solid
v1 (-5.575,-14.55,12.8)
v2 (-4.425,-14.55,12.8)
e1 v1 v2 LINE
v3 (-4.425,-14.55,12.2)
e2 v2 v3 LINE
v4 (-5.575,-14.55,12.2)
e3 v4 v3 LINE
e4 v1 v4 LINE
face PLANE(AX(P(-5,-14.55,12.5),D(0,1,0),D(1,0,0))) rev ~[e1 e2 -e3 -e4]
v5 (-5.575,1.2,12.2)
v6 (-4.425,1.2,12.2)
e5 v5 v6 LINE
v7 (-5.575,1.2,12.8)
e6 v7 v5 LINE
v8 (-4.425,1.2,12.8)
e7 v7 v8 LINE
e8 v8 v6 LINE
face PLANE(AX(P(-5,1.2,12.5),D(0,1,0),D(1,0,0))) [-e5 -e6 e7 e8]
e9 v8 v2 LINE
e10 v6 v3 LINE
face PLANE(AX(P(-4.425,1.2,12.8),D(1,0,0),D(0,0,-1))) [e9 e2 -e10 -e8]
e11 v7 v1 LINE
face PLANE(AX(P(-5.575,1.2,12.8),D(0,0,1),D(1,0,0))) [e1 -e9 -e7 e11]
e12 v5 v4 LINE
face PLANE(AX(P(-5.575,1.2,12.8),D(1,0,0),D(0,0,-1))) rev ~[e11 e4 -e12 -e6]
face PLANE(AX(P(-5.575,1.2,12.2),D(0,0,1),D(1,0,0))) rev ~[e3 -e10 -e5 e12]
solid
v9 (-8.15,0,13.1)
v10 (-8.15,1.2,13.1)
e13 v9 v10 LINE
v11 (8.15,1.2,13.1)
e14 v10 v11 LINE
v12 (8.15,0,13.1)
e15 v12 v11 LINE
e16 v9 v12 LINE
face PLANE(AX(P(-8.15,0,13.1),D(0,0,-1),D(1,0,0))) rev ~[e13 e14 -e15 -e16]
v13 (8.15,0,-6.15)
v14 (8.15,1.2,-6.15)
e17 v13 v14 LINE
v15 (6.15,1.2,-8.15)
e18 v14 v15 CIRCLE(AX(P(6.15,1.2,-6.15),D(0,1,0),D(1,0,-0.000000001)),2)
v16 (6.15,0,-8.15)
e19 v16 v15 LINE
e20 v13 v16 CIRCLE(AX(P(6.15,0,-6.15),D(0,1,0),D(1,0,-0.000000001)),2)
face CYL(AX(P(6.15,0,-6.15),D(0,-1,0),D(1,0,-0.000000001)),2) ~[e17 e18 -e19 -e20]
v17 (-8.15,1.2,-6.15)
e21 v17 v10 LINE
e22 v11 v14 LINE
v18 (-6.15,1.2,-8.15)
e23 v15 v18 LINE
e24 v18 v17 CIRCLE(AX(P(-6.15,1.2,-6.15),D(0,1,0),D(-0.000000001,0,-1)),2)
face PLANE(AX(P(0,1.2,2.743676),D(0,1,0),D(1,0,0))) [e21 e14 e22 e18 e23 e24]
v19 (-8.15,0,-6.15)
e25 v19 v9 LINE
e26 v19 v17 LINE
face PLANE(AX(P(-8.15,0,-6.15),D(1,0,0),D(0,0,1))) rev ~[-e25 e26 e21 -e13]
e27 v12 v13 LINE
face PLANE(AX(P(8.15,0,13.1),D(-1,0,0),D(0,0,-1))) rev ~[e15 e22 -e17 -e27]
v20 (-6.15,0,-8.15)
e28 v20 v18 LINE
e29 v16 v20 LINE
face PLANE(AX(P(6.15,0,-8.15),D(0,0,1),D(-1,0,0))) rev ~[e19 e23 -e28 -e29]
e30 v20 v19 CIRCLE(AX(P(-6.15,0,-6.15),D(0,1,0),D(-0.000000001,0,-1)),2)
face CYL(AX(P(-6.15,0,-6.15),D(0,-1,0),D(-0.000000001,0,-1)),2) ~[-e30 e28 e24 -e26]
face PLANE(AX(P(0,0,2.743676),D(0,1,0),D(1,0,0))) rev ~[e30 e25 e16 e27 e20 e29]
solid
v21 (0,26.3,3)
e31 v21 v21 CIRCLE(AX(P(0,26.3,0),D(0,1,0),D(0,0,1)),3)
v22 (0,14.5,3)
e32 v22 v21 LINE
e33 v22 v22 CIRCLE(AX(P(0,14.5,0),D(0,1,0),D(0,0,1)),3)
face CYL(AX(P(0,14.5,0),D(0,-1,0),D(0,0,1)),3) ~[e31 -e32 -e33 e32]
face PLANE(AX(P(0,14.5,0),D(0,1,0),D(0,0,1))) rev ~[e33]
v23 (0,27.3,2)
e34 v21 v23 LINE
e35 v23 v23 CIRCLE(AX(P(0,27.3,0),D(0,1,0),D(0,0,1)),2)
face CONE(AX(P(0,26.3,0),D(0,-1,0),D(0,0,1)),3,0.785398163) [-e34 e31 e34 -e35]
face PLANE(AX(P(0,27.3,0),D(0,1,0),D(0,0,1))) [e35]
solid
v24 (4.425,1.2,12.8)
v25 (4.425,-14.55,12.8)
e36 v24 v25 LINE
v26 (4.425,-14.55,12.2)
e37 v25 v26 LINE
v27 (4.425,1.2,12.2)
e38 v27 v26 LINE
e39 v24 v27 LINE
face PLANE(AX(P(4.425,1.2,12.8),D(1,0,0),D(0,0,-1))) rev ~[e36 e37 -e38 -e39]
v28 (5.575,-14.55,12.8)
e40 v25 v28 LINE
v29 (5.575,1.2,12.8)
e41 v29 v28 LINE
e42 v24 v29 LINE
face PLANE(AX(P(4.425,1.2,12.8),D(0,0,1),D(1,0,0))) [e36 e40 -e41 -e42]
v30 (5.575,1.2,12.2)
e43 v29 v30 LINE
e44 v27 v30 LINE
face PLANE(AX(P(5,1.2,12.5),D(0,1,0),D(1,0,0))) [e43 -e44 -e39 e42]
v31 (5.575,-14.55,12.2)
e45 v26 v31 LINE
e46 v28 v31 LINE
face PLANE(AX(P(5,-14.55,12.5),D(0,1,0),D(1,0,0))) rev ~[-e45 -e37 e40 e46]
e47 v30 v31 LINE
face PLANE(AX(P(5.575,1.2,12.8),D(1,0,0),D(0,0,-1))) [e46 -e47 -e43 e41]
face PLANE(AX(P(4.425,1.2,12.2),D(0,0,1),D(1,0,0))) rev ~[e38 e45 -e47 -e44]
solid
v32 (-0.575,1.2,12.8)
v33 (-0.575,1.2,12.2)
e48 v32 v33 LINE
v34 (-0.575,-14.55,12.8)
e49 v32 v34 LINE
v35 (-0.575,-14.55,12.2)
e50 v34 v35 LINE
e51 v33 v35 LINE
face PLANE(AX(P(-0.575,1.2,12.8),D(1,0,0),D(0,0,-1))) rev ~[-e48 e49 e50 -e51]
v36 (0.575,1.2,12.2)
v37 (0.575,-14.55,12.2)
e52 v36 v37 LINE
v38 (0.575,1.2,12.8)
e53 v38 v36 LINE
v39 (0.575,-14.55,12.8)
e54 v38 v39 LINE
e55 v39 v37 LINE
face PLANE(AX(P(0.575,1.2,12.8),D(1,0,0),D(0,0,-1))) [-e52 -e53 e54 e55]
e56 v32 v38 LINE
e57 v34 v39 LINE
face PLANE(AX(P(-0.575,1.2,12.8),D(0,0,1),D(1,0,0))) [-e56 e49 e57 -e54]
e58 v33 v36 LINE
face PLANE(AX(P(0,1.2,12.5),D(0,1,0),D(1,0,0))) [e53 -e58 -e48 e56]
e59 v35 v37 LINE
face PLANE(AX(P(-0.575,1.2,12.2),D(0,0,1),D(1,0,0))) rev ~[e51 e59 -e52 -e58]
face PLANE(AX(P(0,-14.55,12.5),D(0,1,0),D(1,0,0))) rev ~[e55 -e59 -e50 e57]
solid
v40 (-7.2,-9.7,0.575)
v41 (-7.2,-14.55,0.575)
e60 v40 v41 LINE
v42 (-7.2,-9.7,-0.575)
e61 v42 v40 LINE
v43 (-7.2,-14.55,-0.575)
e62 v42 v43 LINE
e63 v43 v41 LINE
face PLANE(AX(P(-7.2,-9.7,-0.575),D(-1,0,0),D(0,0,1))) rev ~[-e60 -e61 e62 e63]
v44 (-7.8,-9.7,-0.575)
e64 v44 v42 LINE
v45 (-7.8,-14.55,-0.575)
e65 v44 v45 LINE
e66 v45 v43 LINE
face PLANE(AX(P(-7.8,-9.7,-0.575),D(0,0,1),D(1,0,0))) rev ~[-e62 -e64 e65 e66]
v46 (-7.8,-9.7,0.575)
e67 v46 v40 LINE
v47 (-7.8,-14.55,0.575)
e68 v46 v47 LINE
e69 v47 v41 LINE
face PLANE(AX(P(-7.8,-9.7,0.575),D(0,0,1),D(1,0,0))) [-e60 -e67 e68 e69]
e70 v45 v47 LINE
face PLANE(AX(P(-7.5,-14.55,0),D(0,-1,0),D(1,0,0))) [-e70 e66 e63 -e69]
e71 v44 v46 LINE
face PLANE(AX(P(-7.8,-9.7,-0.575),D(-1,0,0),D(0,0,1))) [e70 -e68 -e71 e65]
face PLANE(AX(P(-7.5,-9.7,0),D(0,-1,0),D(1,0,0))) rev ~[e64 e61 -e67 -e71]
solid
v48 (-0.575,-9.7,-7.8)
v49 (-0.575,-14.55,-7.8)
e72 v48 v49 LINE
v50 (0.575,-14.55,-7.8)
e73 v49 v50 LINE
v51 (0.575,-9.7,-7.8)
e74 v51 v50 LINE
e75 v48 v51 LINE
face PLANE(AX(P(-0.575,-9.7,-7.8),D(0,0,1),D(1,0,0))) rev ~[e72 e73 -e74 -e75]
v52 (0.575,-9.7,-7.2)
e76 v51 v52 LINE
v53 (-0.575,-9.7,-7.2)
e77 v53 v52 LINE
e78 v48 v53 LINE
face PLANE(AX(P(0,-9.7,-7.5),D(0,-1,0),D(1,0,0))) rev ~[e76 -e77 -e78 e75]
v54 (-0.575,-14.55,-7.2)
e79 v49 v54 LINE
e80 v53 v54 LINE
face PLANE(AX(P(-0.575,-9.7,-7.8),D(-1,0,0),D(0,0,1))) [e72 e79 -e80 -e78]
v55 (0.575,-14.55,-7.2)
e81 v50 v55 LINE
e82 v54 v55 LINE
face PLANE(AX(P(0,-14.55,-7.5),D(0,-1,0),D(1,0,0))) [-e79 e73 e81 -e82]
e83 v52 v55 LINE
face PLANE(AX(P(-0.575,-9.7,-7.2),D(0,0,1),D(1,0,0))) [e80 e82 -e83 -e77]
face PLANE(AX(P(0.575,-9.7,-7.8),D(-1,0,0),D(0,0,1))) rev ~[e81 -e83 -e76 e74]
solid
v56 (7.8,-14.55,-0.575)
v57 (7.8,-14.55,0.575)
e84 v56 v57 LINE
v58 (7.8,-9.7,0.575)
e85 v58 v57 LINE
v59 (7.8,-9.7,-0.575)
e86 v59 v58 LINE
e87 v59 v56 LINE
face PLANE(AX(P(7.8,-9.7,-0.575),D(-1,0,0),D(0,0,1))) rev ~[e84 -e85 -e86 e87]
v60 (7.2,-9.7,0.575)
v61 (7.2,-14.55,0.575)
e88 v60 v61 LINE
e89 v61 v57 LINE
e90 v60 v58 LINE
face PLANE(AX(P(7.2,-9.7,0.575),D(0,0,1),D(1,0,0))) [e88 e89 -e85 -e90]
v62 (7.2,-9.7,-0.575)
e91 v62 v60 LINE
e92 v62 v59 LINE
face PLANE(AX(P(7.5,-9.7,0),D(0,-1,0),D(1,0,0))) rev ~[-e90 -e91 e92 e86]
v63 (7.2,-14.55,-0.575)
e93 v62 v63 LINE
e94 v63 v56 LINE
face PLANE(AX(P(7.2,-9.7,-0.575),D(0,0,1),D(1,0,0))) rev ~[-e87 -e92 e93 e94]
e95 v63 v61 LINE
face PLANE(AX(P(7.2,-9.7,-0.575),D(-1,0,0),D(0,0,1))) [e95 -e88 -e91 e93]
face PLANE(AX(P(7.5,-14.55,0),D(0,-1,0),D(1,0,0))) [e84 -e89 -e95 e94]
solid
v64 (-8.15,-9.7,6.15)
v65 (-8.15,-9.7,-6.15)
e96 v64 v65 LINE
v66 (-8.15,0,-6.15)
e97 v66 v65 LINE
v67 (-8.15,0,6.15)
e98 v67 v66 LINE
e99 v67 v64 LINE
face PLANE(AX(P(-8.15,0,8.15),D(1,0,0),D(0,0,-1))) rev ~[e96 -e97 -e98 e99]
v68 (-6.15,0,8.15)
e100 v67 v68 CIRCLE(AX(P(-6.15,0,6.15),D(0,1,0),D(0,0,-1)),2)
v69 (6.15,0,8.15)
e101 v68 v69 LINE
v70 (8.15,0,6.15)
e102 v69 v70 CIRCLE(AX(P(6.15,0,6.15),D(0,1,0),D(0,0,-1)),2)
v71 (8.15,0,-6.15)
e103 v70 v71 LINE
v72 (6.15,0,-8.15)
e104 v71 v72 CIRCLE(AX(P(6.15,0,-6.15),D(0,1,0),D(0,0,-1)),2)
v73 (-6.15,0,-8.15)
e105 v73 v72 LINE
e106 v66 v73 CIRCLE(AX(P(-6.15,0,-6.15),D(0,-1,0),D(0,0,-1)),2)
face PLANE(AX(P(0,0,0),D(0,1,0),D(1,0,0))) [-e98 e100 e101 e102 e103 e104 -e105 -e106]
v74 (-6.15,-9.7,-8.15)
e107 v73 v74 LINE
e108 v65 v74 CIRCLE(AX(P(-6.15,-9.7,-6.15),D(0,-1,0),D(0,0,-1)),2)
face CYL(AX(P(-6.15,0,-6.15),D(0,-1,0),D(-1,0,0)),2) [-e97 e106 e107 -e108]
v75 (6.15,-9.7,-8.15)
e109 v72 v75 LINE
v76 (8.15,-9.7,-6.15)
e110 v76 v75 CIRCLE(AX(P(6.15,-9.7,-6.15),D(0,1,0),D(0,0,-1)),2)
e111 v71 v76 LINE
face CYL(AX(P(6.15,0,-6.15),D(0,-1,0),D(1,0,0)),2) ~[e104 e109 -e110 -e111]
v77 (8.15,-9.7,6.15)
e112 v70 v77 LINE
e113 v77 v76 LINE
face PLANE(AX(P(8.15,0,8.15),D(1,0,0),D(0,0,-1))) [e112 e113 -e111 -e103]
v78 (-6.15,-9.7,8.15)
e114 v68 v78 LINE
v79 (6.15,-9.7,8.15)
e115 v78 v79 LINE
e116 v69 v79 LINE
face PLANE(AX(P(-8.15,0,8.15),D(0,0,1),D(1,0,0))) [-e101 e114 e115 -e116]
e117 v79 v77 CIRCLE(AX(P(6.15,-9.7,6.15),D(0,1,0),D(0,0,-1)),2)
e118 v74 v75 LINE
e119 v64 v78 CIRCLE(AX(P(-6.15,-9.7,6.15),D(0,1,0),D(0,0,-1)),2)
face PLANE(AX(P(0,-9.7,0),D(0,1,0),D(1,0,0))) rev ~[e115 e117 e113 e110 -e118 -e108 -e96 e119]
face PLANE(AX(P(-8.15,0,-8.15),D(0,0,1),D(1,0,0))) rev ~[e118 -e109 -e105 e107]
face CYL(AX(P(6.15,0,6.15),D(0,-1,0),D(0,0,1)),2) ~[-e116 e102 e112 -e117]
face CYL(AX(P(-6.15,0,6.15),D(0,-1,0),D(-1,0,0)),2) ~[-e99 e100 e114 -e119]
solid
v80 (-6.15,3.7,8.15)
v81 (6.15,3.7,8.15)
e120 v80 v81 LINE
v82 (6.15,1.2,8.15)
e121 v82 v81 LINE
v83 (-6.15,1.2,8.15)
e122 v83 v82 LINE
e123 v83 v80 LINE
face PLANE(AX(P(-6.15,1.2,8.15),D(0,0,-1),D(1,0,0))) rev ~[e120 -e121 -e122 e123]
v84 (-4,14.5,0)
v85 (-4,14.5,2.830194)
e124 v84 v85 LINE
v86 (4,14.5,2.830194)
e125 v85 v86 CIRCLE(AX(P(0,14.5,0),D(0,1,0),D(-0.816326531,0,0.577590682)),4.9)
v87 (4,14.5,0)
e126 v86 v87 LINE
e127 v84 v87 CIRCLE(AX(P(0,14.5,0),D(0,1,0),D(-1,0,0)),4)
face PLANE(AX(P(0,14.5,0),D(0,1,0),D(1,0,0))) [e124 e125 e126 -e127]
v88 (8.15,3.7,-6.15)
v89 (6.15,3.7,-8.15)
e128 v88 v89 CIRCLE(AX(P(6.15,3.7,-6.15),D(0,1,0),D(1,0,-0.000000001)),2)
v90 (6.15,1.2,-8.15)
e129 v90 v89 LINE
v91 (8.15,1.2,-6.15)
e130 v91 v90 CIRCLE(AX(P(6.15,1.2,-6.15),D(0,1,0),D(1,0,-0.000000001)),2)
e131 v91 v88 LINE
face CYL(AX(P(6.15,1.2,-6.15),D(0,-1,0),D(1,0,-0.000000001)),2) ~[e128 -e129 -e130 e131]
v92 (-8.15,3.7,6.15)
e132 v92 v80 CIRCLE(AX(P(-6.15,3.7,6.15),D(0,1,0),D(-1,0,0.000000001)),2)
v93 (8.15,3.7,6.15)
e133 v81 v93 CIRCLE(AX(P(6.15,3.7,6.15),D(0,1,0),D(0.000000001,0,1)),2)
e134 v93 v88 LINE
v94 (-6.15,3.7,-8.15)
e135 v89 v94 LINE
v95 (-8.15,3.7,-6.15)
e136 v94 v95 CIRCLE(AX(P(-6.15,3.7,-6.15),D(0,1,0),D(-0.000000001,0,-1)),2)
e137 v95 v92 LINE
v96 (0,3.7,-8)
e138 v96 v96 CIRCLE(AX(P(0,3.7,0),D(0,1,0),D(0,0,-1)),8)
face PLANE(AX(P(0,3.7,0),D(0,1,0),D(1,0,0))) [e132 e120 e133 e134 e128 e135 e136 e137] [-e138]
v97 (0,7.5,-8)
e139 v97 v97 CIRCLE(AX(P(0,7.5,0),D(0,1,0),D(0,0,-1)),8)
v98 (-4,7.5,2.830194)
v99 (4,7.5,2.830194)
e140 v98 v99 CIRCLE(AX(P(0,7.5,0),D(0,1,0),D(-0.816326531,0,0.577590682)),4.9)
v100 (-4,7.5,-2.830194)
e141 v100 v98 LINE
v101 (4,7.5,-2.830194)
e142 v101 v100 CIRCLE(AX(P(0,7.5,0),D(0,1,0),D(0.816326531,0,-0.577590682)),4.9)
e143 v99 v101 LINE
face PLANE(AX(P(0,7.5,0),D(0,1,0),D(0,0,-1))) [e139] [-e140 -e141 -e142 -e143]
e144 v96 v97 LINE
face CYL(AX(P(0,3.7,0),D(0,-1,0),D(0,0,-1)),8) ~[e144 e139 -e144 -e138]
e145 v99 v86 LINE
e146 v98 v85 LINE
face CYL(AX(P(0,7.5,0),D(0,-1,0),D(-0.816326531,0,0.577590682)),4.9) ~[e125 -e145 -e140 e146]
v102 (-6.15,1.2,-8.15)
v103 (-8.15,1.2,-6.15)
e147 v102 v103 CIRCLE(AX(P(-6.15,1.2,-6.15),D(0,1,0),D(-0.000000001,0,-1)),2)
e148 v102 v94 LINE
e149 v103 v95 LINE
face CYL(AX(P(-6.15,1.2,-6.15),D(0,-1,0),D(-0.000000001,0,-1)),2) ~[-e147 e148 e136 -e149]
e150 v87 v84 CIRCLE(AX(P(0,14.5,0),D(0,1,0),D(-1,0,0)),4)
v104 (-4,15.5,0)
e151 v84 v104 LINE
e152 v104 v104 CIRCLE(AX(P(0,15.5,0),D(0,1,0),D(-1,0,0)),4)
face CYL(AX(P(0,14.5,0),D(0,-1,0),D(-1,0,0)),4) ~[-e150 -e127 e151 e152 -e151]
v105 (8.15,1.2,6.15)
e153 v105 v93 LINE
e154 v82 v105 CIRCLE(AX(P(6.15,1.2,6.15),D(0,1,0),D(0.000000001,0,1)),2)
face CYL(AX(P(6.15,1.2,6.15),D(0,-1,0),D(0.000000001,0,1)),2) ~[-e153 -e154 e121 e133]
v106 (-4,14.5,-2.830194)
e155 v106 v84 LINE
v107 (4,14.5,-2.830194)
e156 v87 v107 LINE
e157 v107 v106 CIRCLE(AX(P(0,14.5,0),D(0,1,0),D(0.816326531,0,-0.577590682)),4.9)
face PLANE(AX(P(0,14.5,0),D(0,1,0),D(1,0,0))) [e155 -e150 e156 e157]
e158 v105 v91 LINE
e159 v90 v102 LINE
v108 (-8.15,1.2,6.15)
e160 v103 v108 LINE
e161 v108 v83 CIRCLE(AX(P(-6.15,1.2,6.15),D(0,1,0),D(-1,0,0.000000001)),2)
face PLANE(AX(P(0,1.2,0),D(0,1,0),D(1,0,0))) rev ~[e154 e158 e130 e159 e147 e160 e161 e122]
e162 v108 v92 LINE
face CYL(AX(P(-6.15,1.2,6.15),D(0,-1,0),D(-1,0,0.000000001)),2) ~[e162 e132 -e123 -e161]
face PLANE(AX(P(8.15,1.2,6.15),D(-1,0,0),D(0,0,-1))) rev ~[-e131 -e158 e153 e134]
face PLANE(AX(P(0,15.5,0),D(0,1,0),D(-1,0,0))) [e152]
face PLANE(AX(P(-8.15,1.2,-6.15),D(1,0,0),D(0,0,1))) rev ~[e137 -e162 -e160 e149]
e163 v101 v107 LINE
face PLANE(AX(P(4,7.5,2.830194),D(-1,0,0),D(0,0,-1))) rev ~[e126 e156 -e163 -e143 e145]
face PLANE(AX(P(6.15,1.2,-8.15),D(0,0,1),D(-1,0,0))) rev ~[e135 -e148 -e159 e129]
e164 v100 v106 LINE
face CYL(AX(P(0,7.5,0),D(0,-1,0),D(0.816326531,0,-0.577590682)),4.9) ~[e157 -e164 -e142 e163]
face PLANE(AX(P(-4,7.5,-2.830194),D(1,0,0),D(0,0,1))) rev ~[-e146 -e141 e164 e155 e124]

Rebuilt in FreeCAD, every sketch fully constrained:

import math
import FreeCAD as App
import Part
import Sketcher
from FreeCAD import Vector
Q = App.Units.Quantity


def edges_at(feature, points):
    """Names of the edges that pass closest to the given points."""
    edges = feature.Shape.Edges
    near = lambda p: min(range(len(edges)), key=lambda i: edges[i].distToShape(Part.Vertex(*p))[0])
    return sorted({f"Edge{near(p) + 1}" for p in points})

doc = App.newDocument("Part")
params = doc.addObject("Spreadsheet::Sheet", "Params")
for row, (alias, value) in enumerate([
    ("sketch1_width", "16.3 mm"),
    ("pad1_length", "9.7 mm"),
    ("fillet_radius", "2 mm"),
    ("sketch2_radius", "2 mm"),
    ("sketch2_width", "16.3 mm"),
    ("sketch2_height", "19.25 mm"),
    ("pad2_length", "1.2 mm"),
    ("sketch3_radius", "2 mm"),
    ("sketch3_width", "12.3 mm"),
    ("pad3_length", "2.5 mm"),
    ("sketch4_diameter", "16 mm"),
    ("pad4_length", "3.8 mm"),
    ("sketch5_radius", "4.9 mm"),
    ("pad5_length", "7 mm"),
    ("sketch6_diameter", "8 mm"),
    ("pad6_length", "1 mm"),
    ("sketch7_diameter", "6 mm"),
    ("pad7_length", "11.8 mm"),
    ("pad7_length2", "1 mm"),
    ("chamfer_size", "1 mm"),
    ("sketch8_height", "0.6 mm"),
    ("sketch8_width", "1.15 mm"),
    ("pad8_length", "4.85 mm"),
    ("sketch9_width", "0.6 mm"),
    ("sketch9_height", "1.15 mm"),
    ("pad9_length", "4.85 mm"),
    ("sketch10_width", "0.6 mm"),
    ("sketch10_height", "1.15 mm"),
    ("pad10_length", "4.85 mm"),
    ("sketch11_height", "0.6 mm"),
    ("sketch11_width", "1.15 mm"),
    ("pad11_length", "15.75 mm"),
    ("sketch12_height", "0.6 mm"),
    ("sketch12_width", "1.15 mm"),
    ("pad12_length", "15.75 mm"),
    ("sketch13_height", "0.6 mm"),
    ("sketch13_width", "1.15 mm"),
    ("pad13_length", "15.75 mm"),
], start=1):
    params.set(f"A{row}", alias)
    params.set(f"B{row}", "=" + value)
    params.setAlias(f"B{row}", alias)

body = doc.addObject("PartDesign::Body", "Body")

# Sketch on XZ plane
sketch1 = body.newObject("Sketcher::SketchObject", "Sketch")
sketch1.AttachmentSupport = (doc.getObject("XZ_Plane"), [""])
sketch1.MapMode = "FlatFace"
sketch1.addGeometry([
    Part.LineSegment(Vector(-8.15, -8.15, 0), Vector(-8.15, 8.15, 0)),
    Part.LineSegment(Vector(-8.15, 8.15, 0), Vector(8.15, 8.15, 0)),
    Part.LineSegment(Vector(8.15, 8.15, 0), Vector(8.15, -8.15, 0)),
    Part.LineSegment(Vector(8.15, -8.15, 0), Vector(-8.15, -8.15, 0)),
], False)
sketch1.addConstraint([
    Sketcher.Constraint("Coincident", 0, 2, 1, 1),
    Sketcher.Constraint("Coincident", 1, 2, 2, 1),
    Sketcher.Constraint("Coincident", 2, 2, 3, 1),
    Sketcher.Constraint("Coincident", 3, 2, 0, 1),
    Sketcher.Constraint("Vertical", 0),
    Sketcher.Constraint("Horizontal", 1),
    Sketcher.Constraint("Vertical", 2),
    Sketcher.Constraint("Horizontal", 3),
    Sketcher.Constraint("Symmetric", 0, 2, 2, 2, -1, 1),
    Sketcher.Constraint("Equal", 3, 0),
    Sketcher.Constraint("DistanceX", 1, 1, 1, 2, Q("16.3 mm")),
])
sketch1.setExpression("Constraints[10]", "Params.sketch1_width")
pad1 = body.newObject("PartDesign::Pad", "Pad")
pad1.Profile = sketch1
pad1.setExpression("Length", "Params.pad1_length")
doc.recompute()

fillet = body.newObject("PartDesign::Fillet", "Fillet")
fillet.Base = (pad1, edges_at(pad1, [
    (8.15, -4.85, 8.15),
    (-8.15, -4.85, 8.15),
    (-8.15, -4.85, -8.15),
    (8.15, -4.85, -8.15),
]))
fillet.setExpression("Radius", "Params.fillet_radius")
body2 = doc.addObject("PartDesign::Body", "Body001")

# Sketch on XZ plane
sketch2 = body2.newObject("Sketcher::SketchObject", "Sketch001")
sketch2.AttachmentSupport = (doc.getObject("XZ_Plane001"), [""])
sketch2.MapMode = "FlatFace"
sketch2.addGeometry([
    Part.LineSegment(Vector(-8.15, 13.1, 0), Vector(8.15, 13.1, 0)),  # 0
    Part.LineSegment(Vector(8.15, 13.1, 0), Vector(8.15, -6.15, 0)),  # 1
    Part.ArcOfCircle(Part.Circle(Vector(6.15, -6.15, 0), Vector(0, 0, 1), 2), math.radians(-90), math.radians(0)),  # 2
    Part.LineSegment(Vector(6.15, -8.15, 0), Vector(-6.15, -8.15, 0)),  # 3
    Part.ArcOfCircle(Part.Circle(Vector(-6.15, -6.15, 0), Vector(0, 0, 1), 2), math.radians(-180), math.radians(-90)),  # 4
    Part.LineSegment(Vector(-8.15, -6.15, 0), Vector(-8.15, 13.1, 0)),  # 5
], False)
sketch2.addConstraint([
    Sketcher.Constraint("Coincident", 0, 2, 1, 1),
    Sketcher.Constraint("Tangent", 1, 2, 2, 2),
    Sketcher.Constraint("Tangent", 2, 1, 3, 1),
    Sketcher.Constraint("Tangent", 3, 2, 4, 2),
    Sketcher.Constraint("Tangent", 4, 1, 5, 1),
    Sketcher.Constraint("Coincident", 5, 2, 0, 1),
    Sketcher.Constraint("Horizontal", 0),
    Sketcher.Constraint("Vertical", 1),
    Sketcher.Constraint("Horizontal", 3),
    Sketcher.Constraint("Vertical", 5),
    Sketcher.Constraint("Equal", 2, 4),
    Sketcher.Constraint("Radius", 2, Q("2 mm")),
    Sketcher.Constraint("DistanceX", 0, 1, 0, 2, Q("16.3 mm")),
    Sketcher.Constraint("DistanceY", 1, 2, 1, 1, Q("19.25 mm")),
    Sketcher.Constraint("DistanceY", -1, 1, 0, 2, Q("13.1 mm")),
    Sketcher.Constraint("DistanceX", -1, 1, 2, 3, Q("6.15 mm")),
])
sketch2.setExpression("Constraints[11]", "Params.sketch2_radius")
sketch2.setExpression("Constraints[12]", "Params.sketch2_width")
sketch2.setExpression("Constraints[13]", "Params.sketch2_height")
pad2 = body2.newObject("PartDesign::Pad", "Pad001")
pad2.Profile = sketch2
pad2.setExpression("Length", "Params.pad2_length")
pad2.Reversed = True
body3 = doc.addObject("PartDesign::Body", "Body002")

# Sketch on XZ plane
sketch3 = body3.newObject("Sketcher::SketchObject", "Sketch002")
sketch3.AttachmentSupport = (doc.getObject("XZ_Plane002"), [""])
sketch3.MapMode = "FlatFace"
sketch3.AttachmentOffset = App.Placement(Vector(0, 0, -1.2), App.Rotation())
sketch3.addGeometry([
    Part.LineSegment(Vector(8.15, 6.15, 0), Vector(8.15, -6.15, 0)),  # 0
    Part.ArcOfCircle(Part.Circle(Vector(6.15, -6.15, 0), Vector(0, 0, 1), 2), math.radians(-90), math.radians(0)),  # 1
    Part.LineSegment(Vector(6.15, -8.15, 0), Vector(-6.15, -8.15, 0)),  # 2
    Part.ArcOfCircle(Part.Circle(Vector(-6.15, -6.15, 0), Vector(0, 0, 1), 2), math.radians(-180), math.radians(-90)),  # 3
    Part.LineSegment(Vector(-8.15, -6.15, 0), Vector(-8.15, 6.15, 0)),  # 4
    Part.ArcOfCircle(Part.Circle(Vector(-6.15, 6.15, 0), Vector(0, 0, 1), 2), math.radians(90), math.radians(180)),  # 5
    Part.LineSegment(Vector(-6.15, 8.15, 0), Vector(6.15, 8.15, 0)),  # 6
    Part.ArcOfCircle(Part.Circle(Vector(6.15, 6.15, 0), Vector(0, 0, 1), 2), math.radians(0), math.radians(90)),  # 7
], False)
sketch3.addConstraint([
    Sketcher.Constraint("Tangent", 0, 2, 1, 2),
    Sketcher.Constraint("Tangent", 1, 1, 2, 1),
    Sketcher.Constraint("Tangent", 2, 2, 3, 2),
    Sketcher.Constraint("Tangent", 3, 1, 4, 1),
    Sketcher.Constraint("Tangent", 4, 2, 5, 2),
    Sketcher.Constraint("Tangent", 5, 1, 6, 1),
    Sketcher.Constraint("Tangent", 6, 2, 7, 2),
    Sketcher.Constraint("Tangent", 7, 1, 0, 1),
    Sketcher.Constraint("Vertical", 0),
    Sketcher.Constraint("Horizontal", 2),
    Sketcher.Constraint("Vertical", 4),
    Sketcher.Constraint("Horizontal", 6),
    Sketcher.Constraint("Equal", 1, 3),
    Sketcher.Constraint("Equal", 3, 5),
    Sketcher.Constraint("Equal", 5, 7),
    Sketcher.Constraint("Symmetric", 1, 3, 5, 3, -1, 1),
    Sketcher.Constraint("Equal", 6, 0),
    Sketcher.Constraint("Radius", 1, Q("2 mm")),
    Sketcher.Constraint("DistanceX", 2, 2, 2, 1, Q("12.3 mm")),
])
sketch3.setExpression("Constraints[17]", "Params.sketch3_radius")
sketch3.setExpression("Constraints[18]", "Params.sketch3_width")
pad3 = body3.newObject("PartDesign::Pad", "Pad002")
pad3.Profile = sketch3
pad3.setExpression("Length", "Params.pad3_length")
pad3.Reversed = True

# Sketch on XZ plane
sketch4 = body3.newObject("Sketcher::SketchObject", "Sketch003")
sketch4.AttachmentSupport = (doc.getObject("XZ_Plane002"), [""])
sketch4.MapMode = "FlatFace"
sketch4.AttachmentOffset = App.Placement(Vector(0, 0, -3.7), App.Rotation())
sketch4.addGeometry(Part.Circle(Vector(0, 0, 0), Vector(0, 0, 1), 8), False)
sketch4.addConstraint([
    Sketcher.Constraint("Coincident", 0, 3, -1, 1),
    Sketcher.Constraint("Diameter", 0, Q("16 mm")),
])
sketch4.setExpression("Constraints[1]", "Params.sketch4_diameter")
pad4 = body3.newObject("PartDesign::Pad", "Pad003")
pad4.Profile = sketch4
pad4.setExpression("Length", "Params.pad4_length")
pad4.Reversed = True

# Sketch on XZ plane
sketch5 = body3.newObject("Sketcher::SketchObject", "Sketch004")
sketch5.AttachmentSupport = (doc.getObject("XZ_Plane002"), [""])
sketch5.MapMode = "FlatFace"
sketch5.AttachmentOffset = App.Placement(Vector(0, 0, -7.5), App.Rotation())
sketch5.addGeometry([
    Part.LineSegment(Vector(-4, -2.830194, 0), Vector(-4, 2.830194, 0)),
    Part.ArcOfCircle(Part.Circle(Vector(0, 0, 0), Vector(0, 0, 1), 4.9), math.radians(35.281262), math.radians(144.718738)),
    Part.LineSegment(Vector(4, 2.830194, 0), Vector(4, -2.830194, 0)),
    Part.ArcOfCircle(Part.Circle(Vector(0, 0, 0), Vector(0, 0, 1), 4.9), math.radians(-144.718738), math.radians(-35.281262)),
], False)
sketch5.addConstraint([
    Sketcher.Constraint("Coincident", 0, 2, 1, 2),
    Sketcher.Constraint("Coincident", 1, 1, 2, 1),
    Sketcher.Constraint("Coincident", 2, 2, 3, 2),
    Sketcher.Constraint("Coincident", 3, 1, 0, 1),
    Sketcher.Constraint("Vertical", 0),
    Sketcher.Constraint("Vertical", 2),
    Sketcher.Constraint("Coincident", 1, 3, -1, 1),
    Sketcher.Constraint("Coincident", 3, 3, -1, 1),
    Sketcher.Constraint("Equal", 1, 3),
    Sketcher.Constraint("Horizontal", 0, 2, 1, 1),
    Sketcher.Constraint("Radius", 1, Q("4.9 mm")),
    Sketcher.Constraint("DistanceX", 0, 2, -1, 1, Q("4 mm")),
])
sketch5.setExpression("Constraints[10]", "Params.sketch5_radius")
pad5 = body3.newObject("PartDesign::Pad", "Pad004")
pad5.Profile = sketch5
pad5.setExpression("Length", "Params.pad5_length")
pad5.Reversed = True

# Sketch on XZ plane
sketch6 = body3.newObject("Sketcher::SketchObject", "Sketch005")
sketch6.AttachmentSupport = (doc.getObject("XZ_Plane002"), [""])
sketch6.MapMode = "FlatFace"
sketch6.AttachmentOffset = App.Placement(Vector(0, 0, -14.5), App.Rotation())
sketch6.addGeometry(Part.Circle(Vector(0, 0, 0), Vector(0, 0, 1), 4), False)
sketch6.addConstraint([
    Sketcher.Constraint("Coincident", 0, 3, -1, 1),
    Sketcher.Constraint("Diameter", 0, Q("8 mm")),
])
sketch6.setExpression("Constraints[1]", "Params.sketch6_diameter")
pad6 = body3.newObject("PartDesign::Pad", "Pad005")
pad6.Profile = sketch6
pad6.setExpression("Length", "Params.pad6_length")
pad6.Reversed = True
body4 = doc.addObject("PartDesign::Body", "Body003")

# Sketch on XZ plane
sketch7 = body4.newObject("Sketcher::SketchObject", "Sketch006")
sketch7.AttachmentSupport = (doc.getObject("XZ_Plane003"), [""])
sketch7.MapMode = "FlatFace"
sketch7.AttachmentOffset = App.Placement(Vector(0, 0, -15.5), App.Rotation())
sketch7.addGeometry(Part.Circle(Vector(0, 0, 0), Vector(0, 0, 1), 3), False)
sketch7.addConstraint([
    Sketcher.Constraint("Coincident", 0, 3, -1, 1),
    Sketcher.Constraint("Diameter", 0, Q("6 mm")),
])
sketch7.setExpression("Constraints[1]", "Params.sketch7_diameter")
pad7 = body4.newObject("PartDesign::Pad", "Pad006")
pad7.Profile = sketch7
pad7.Type = "TwoLengths"
pad7.setExpression("Length", "Params.pad7_length")
pad7.setExpression("Length2", "Params.pad7_length2")
pad7.Reversed = True
doc.recompute()

chamfer = body4.newObject("PartDesign::Chamfer", "Chamfer")
chamfer.Base = (pad7, edges_at(pad7, [(0, 27.3, -3)]))
chamfer.setExpression("Size", "Params.chamfer_size")
body5 = doc.addObject("PartDesign::Body", "Body004")

# Sketch on XZ plane
sketch8 = body5.newObject("Sketcher::SketchObject", "Sketch007")
sketch8.AttachmentSupport = (doc.getObject("XZ_Plane004"), [""])
sketch8.MapMode = "FlatFace"
sketch8.AttachmentOffset = App.Placement(Vector(0, 0, 9.7), App.Rotation())
sketch8.addGeometry([
    Part.LineSegment(Vector(-0.575, -7.2, 0), Vector(-0.575, -7.8, 0)),
    Part.LineSegment(Vector(-0.575, -7.8, 0), Vector(0.575, -7.8, 0)),
    Part.LineSegment(Vector(0.575, -7.8, 0), Vector(0.575, -7.2, 0)),
    Part.LineSegment(Vector(0.575, -7.2, 0), Vector(-0.575, -7.2, 0)),
], False)
sketch8.addConstraint([
    Sketcher.Constraint("Coincident", 0, 2, 1, 1),
    Sketcher.Constraint("Coincident", 1, 2, 2, 1),
    Sketcher.Constraint("Coincident", 2, 2, 3, 1),
    Sketcher.Constraint("Coincident", 3, 2, 0, 1),
    Sketcher.Constraint("Vertical", 0),
    Sketcher.Constraint("Horizontal", 1),
    Sketcher.Constraint("Vertical", 2),
    Sketcher.Constraint("Horizontal", 3),
    Sketcher.Constraint("DistanceY", 0, 2, 0, 1, Q("0.6 mm")),
    Sketcher.Constraint("DistanceX", 1, 1, 1, 2, Q("1.15 mm")),
    Sketcher.Constraint("DistanceY", 0, 2, -1, 1, Q("7.8 mm")),
    Sketcher.Constraint("DistanceX", 0, 2, -1, 1, Q("0.575 mm")),
])
sketch8.setExpression("Constraints[8]", "Params.sketch8_height")
sketch8.setExpression("Constraints[9]", "Params.sketch8_width")
pad8 = body5.newObject("PartDesign::Pad", "Pad007")
pad8.Profile = sketch8
pad8.setExpression("Length", "Params.pad8_length")
body6 = doc.addObject("PartDesign::Body", "Body005")

# Sketch on XZ plane
sketch9 = body6.newObject("Sketcher::SketchObject", "Sketch008")
sketch9.AttachmentSupport = (doc.getObject("XZ_Plane005"), [""])
sketch9.MapMode = "FlatFace"
sketch9.AttachmentOffset = App.Placement(Vector(0, 0, 9.7), App.Rotation())
sketch9.addGeometry([
    Part.LineSegment(Vector(7.2, 0.575, 0), Vector(7.2, -0.575, 0)),
    Part.LineSegment(Vector(7.2, -0.575, 0), Vector(7.8, -0.575, 0)),
    Part.LineSegment(Vector(7.8, -0.575, 0), Vector(7.8, 0.575, 0)),
    Part.LineSegment(Vector(7.8, 0.575, 0), Vector(7.2, 0.575, 0)),
], False)
sketch9.addConstraint([
    Sketcher.Constraint("Coincident", 0, 2, 1, 1),
    Sketcher.Constraint("Coincident", 1, 2, 2, 1),
    Sketcher.Constraint("Coincident", 2, 2, 3, 1),
    Sketcher.Constraint("Coincident", 3, 2, 0, 1),
    Sketcher.Constraint("Vertical", 0),
    Sketcher.Constraint("Horizontal", 1),
    Sketcher.Constraint("Vertical", 2),
    Sketcher.Constraint("Horizontal", 3),
    Sketcher.Constraint("DistanceX", 1, 1, 1, 2, Q("0.6 mm")),
    Sketcher.Constraint("DistanceY", 0, 2, 0, 1, Q("1.15 mm")),
    Sketcher.Constraint("DistanceX", -1, 1, 0, 2, Q("7.2 mm")),
    Sketcher.Constraint("DistanceY", 0, 2, -1, 1, Q("0.575 mm")),
])
sketch9.setExpression("Constraints[8]", "Params.sketch9_width")
sketch9.setExpression("Constraints[9]", "Params.sketch9_height")
pad9 = body6.newObject("PartDesign::Pad", "Pad008")
pad9.Profile = sketch9
pad9.setExpression("Length", "Params.pad9_length")
body7 = doc.addObject("PartDesign::Body", "Body006")

# Sketch on XZ plane
sketch10 = body7.newObject("Sketcher::SketchObject", "Sketch009")
sketch10.AttachmentSupport = (doc.getObject("XZ_Plane006"), [""])
sketch10.MapMode = "FlatFace"
sketch10.AttachmentOffset = App.Placement(Vector(0, 0, 9.7), App.Rotation())
sketch10.addGeometry([
    Part.LineSegment(Vector(-7.8, 0.575, 0), Vector(-7.8, -0.575, 0)),
    Part.LineSegment(Vector(-7.8, -0.575, 0), Vector(-7.2, -0.575, 0)),
    Part.LineSegment(Vector(-7.2, -0.575, 0), Vector(-7.2, 0.575, 0)),
    Part.LineSegment(Vector(-7.2, 0.575, 0), Vector(-7.8, 0.575, 0)),
], False)
sketch10.addConstraint([
    Sketcher.Constraint("Coincident", 0, 2, 1, 1),
    Sketcher.Constraint("Coincident", 1, 2, 2, 1),
    Sketcher.Constraint("Coincident", 2, 2, 3, 1),
    Sketcher.Constraint("Coincident", 3, 2, 0, 1),
    Sketcher.Constraint("Vertical", 0),
    Sketcher.Constraint("Horizontal", 1),
    Sketcher.Constraint("Vertical", 2),
    Sketcher.Constraint("Horizontal", 3),
    Sketcher.Constraint("DistanceX", 1, 1, 1, 2, Q("0.6 mm")),
    Sketcher.Constraint("DistanceY", 0, 2, 0, 1, Q("1.15 mm")),
    Sketcher.Constraint("DistanceX", 0, 2, -1, 1, Q("7.8 mm")),
    Sketcher.Constraint("DistanceY", 0, 2, -1, 1, Q("0.575 mm")),
])
sketch10.setExpression("Constraints[8]", "Params.sketch10_width")
sketch10.setExpression("Constraints[9]", "Params.sketch10_height")
pad10 = body7.newObject("PartDesign::Pad", "Pad009")
pad10.Profile = sketch10
pad10.setExpression("Length", "Params.pad10_length")
body8 = doc.addObject("PartDesign::Body", "Body007")

# Sketch on XZ plane
sketch11 = body8.newObject("Sketcher::SketchObject", "Sketch010")
sketch11.AttachmentSupport = (doc.getObject("XZ_Plane007"), [""])
sketch11.MapMode = "FlatFace"
sketch11.AttachmentOffset = App.Placement(Vector(0, 0, -1.2), App.Rotation())
sketch11.addGeometry([
    Part.LineSegment(Vector(-5.575, 12.2, 0), Vector(-5.575, 12.8, 0)),
    Part.LineSegment(Vector(-5.575, 12.8, 0), Vector(-4.425, 12.8, 0)),
    Part.LineSegment(Vector(-4.425, 12.8, 0), Vector(-4.425, 12.2, 0)),
    Part.LineSegment(Vector(-4.425, 12.2, 0), Vector(-5.575, 12.2, 0)),
], False)
sketch11.addConstraint([
    Sketcher.Constraint("Coincident", 0, 2, 1, 1),
    Sketcher.Constraint("Coincident", 1, 2, 2, 1),
    Sketcher.Constraint("Coincident", 2, 2, 3, 1),
    Sketcher.Constraint("Coincident", 3, 2, 0, 1),
    Sketcher.Constraint("Vertical", 0),
    Sketcher.Constraint("Horizontal", 1),
    Sketcher.Constraint("Vertical", 2),
    Sketcher.Constraint("Horizontal", 3),
    Sketcher.Constraint("DistanceY", 0, 1, 0, 2, Q("0.6 mm")),
    Sketcher.Constraint("DistanceX", 1, 1, 1, 2, Q("1.15 mm")),
    Sketcher.Constraint("DistanceY", -1, 1, 0, 2, Q("12.8 mm")),
    Sketcher.Constraint("DistanceX", 0, 2, -1, 1, Q("5.575 mm")),
])
sketch11.setExpression("Constraints[8]", "Params.sketch11_height")
sketch11.setExpression("Constraints[9]", "Params.sketch11_width")
pad11 = body8.newObject("PartDesign::Pad", "Pad010")
pad11.Profile = sketch11
pad11.setExpression("Length", "Params.pad11_length")
body9 = doc.addObject("PartDesign::Body", "Body008")

# Sketch on XZ plane
sketch12 = body9.newObject("Sketcher::SketchObject", "Sketch011")
sketch12.AttachmentSupport = (doc.getObject("XZ_Plane008"), [""])
sketch12.MapMode = "FlatFace"
sketch12.AttachmentOffset = App.Placement(Vector(0, 0, -1.2), App.Rotation())
sketch12.addGeometry([
    Part.LineSegment(Vector(4.425, 12.2, 0), Vector(4.425, 12.8, 0)),
    Part.LineSegment(Vector(4.425, 12.8, 0), Vector(5.575, 12.8, 0)),
    Part.LineSegment(Vector(5.575, 12.8, 0), Vector(5.575, 12.2, 0)),
    Part.LineSegment(Vector(5.575, 12.2, 0), Vector(4.425, 12.2, 0)),
], False)
sketch12.addConstraint([
    Sketcher.Constraint("Coincident", 0, 2, 1, 1),
    Sketcher.Constraint("Coincident", 1, 2, 2, 1),
    Sketcher.Constraint("Coincident", 2, 2, 3, 1),
    Sketcher.Constraint("Coincident", 3, 2, 0, 1),
    Sketcher.Constraint("Vertical", 0),
    Sketcher.Constraint("Horizontal", 1),
    Sketcher.Constraint("Vertical", 2),
    Sketcher.Constraint("Horizontal", 3),
    Sketcher.Constraint("DistanceY", 0, 1, 0, 2, Q("0.6 mm")),
    Sketcher.Constraint("DistanceX", 1, 1, 1, 2, Q("1.15 mm")),
    Sketcher.Constraint("DistanceY", -1, 1, 0, 2, Q("12.8 mm")),
    Sketcher.Constraint("DistanceX", -1, 1, 0, 2, Q("4.425 mm")),
])
sketch12.setExpression("Constraints[8]", "Params.sketch12_height")
sketch12.setExpression("Constraints[9]", "Params.sketch12_width")
pad12 = body9.newObject("PartDesign::Pad", "Pad011")
pad12.Profile = sketch12
pad12.setExpression("Length", "Params.pad12_length")
body10 = doc.addObject("PartDesign::Body", "Body009")

# Sketch on XZ plane
sketch13 = body10.newObject("Sketcher::SketchObject", "Sketch012")
sketch13.AttachmentSupport = (doc.getObject("XZ_Plane009"), [""])
sketch13.MapMode = "FlatFace"
sketch13.AttachmentOffset = App.Placement(Vector(0, 0, -1.2), App.Rotation())
sketch13.addGeometry([
    Part.LineSegment(Vector(-0.575, 12.2, 0), Vector(-0.575, 12.8, 0)),
    Part.LineSegment(Vector(-0.575, 12.8, 0), Vector(0.575, 12.8, 0)),
    Part.LineSegment(Vector(0.575, 12.8, 0), Vector(0.575, 12.2, 0)),
    Part.LineSegment(Vector(0.575, 12.2, 0), Vector(-0.575, 12.2, 0)),
], False)
sketch13.addConstraint([
    Sketcher.Constraint("Coincident", 0, 2, 1, 1),
    Sketcher.Constraint("Coincident", 1, 2, 2, 1),
    Sketcher.Constraint("Coincident", 2, 2, 3, 1),
    Sketcher.Constraint("Coincident", 3, 2, 0, 1),
    Sketcher.Constraint("Vertical", 0),
    Sketcher.Constraint("Horizontal", 1),
    Sketcher.Constraint("Vertical", 2),
    Sketcher.Constraint("Horizontal", 3),
    Sketcher.Constraint("DistanceY", 0, 1, 0, 2, Q("0.6 mm")),
    Sketcher.Constraint("DistanceX", 1, 1, 1, 2, Q("1.15 mm")),
    Sketcher.Constraint("DistanceY", -1, 1, 0, 2, Q("12.8 mm")),
    Sketcher.Constraint("DistanceX", 0, 2, -1, 1, Q("0.575 mm")),
])
sketch13.setExpression("Constraints[8]", "Params.sketch13_height")
sketch13.setExpression("Constraints[9]", "Params.sketch13_width")
pad13 = body10.newObject("PartDesign::Pad", "Pad012")
pad13.Profile = sketch13
pad13.setExpression("Length", "Params.pad13_length")

doc.recompute()
